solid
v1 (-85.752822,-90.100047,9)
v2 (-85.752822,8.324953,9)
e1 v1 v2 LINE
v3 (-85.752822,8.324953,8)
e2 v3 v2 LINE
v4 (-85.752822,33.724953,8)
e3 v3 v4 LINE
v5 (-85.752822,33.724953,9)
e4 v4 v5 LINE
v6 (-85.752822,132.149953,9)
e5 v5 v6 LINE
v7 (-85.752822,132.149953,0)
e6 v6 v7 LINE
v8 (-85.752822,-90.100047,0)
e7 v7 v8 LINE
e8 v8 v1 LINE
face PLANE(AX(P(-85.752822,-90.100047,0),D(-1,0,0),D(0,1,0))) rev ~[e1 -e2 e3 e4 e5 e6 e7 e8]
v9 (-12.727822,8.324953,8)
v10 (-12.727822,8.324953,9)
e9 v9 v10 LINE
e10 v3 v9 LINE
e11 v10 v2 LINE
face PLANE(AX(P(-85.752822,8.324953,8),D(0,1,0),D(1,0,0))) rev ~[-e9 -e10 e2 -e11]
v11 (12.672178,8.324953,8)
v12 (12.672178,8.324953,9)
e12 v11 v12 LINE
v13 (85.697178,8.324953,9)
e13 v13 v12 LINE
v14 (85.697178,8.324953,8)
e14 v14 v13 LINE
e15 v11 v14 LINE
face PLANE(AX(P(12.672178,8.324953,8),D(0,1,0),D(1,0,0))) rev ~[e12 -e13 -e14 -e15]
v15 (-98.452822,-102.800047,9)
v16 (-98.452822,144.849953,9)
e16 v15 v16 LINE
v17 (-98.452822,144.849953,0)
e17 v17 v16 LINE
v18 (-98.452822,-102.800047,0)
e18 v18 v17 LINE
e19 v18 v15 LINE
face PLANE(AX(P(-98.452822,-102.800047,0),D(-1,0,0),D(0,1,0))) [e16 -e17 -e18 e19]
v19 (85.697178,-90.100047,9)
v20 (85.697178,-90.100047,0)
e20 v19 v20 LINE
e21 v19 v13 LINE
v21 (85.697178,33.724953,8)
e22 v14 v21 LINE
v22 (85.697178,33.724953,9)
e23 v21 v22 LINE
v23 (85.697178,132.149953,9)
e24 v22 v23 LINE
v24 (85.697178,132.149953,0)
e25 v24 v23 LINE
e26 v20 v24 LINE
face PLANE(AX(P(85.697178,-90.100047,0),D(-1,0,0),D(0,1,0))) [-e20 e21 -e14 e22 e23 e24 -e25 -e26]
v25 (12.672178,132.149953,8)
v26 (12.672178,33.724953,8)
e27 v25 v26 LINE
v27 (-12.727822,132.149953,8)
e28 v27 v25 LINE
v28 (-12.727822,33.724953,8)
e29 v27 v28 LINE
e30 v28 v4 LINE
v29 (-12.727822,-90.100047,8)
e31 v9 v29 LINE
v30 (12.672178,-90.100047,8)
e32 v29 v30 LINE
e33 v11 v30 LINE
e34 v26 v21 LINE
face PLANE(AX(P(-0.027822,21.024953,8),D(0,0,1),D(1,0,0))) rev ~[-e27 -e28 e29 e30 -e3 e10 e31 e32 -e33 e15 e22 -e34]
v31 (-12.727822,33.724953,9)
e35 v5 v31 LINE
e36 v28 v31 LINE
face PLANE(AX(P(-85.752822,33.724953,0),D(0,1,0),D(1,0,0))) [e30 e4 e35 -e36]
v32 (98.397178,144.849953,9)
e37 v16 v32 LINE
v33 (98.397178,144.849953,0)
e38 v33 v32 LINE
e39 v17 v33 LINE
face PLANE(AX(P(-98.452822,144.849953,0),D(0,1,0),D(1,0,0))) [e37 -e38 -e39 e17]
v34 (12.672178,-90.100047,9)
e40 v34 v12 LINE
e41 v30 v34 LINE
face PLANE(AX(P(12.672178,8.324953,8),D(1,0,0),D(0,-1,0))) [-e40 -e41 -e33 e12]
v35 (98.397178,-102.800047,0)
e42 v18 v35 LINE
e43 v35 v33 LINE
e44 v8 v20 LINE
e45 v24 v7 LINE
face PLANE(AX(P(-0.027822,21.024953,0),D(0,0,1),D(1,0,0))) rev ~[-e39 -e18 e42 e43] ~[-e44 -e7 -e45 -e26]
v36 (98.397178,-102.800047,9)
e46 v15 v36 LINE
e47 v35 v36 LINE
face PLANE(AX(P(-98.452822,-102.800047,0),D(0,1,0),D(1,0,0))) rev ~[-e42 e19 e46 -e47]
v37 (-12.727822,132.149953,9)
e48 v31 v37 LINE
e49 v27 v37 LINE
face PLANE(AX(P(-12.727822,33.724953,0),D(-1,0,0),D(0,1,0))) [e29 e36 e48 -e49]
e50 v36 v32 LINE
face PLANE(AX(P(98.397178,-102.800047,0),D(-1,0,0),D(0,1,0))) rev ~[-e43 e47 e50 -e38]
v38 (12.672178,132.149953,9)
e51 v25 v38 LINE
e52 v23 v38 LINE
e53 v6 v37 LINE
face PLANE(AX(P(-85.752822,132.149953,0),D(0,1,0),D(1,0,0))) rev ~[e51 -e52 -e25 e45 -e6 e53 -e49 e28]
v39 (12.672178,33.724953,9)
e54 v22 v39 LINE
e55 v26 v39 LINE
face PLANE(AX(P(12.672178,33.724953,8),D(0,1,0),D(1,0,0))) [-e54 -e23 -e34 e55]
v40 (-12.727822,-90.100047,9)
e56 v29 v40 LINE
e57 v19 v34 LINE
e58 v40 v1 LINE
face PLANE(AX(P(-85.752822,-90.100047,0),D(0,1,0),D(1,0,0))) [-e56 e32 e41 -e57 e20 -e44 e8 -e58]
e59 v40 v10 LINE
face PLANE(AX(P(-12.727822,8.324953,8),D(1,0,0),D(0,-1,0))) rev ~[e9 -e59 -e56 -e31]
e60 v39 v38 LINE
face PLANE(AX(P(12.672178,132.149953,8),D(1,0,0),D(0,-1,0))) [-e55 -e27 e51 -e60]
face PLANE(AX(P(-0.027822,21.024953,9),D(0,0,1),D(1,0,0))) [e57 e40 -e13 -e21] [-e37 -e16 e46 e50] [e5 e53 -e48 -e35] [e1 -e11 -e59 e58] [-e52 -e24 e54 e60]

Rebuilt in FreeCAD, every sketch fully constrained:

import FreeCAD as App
import Part
import Sketcher
Q = App.Units.Quantity


def add_polygon(sketch, points):
    """Adds a closed chain of lines whose ends are joined by coincident constraints."""
    first, n = sketch.GeometryCount, len(points)
    for a, b in zip(points, points[1:] + points[:1]):
        sketch.addGeometry(Part.LineSegment(App.Vector(*a, 0), App.Vector(*b, 0)), False)
    for i in range(n):
        sketch.addConstraint(Sketcher.Constraint("Coincident", first + i, 2, first + (i + 1) % n, 1))

doc = App.newDocument("Part")
body = doc.addObject("PartDesign::Body", "Body")

sketch1 = doc.addObject("Sketcher::SketchObject", "Sketch")
body.addObject(sketch1)
sketch1.AttachmentSupport = (doc.XY_Plane, [""])
sketch1.MapMode = "FlatFace"
add_polygon(sketch1, [(-98, 145), (-98, -103), (98, -103), (98, 145)])
sketch1.addConstraint(Sketcher.Constraint("Vertical", 0))
sketch1.addConstraint(Sketcher.Constraint("Horizontal", 1))
sketch1.addConstraint(Sketcher.Constraint("Vertical", 2))
sketch1.addConstraint(Sketcher.Constraint("Horizontal", 3))
sketch1.addConstraint(Sketcher.Constraint("DistanceX", 1, 1, 1, 2, Q("7.75 in")))
sketch1.addConstraint(Sketcher.Constraint("DistanceY", 0, 2, 0, 1, Q("9.75 in")))
sketch1.addConstraint(Sketcher.Constraint("DistanceX", 0, 2, -1, 1, 98.452822))
sketch1.addConstraint(Sketcher.Constraint("DistanceY", 0, 2, -1, 1, 102.800047))
pad1 = doc.addObject("PartDesign::Pad", "Pad")
body.addObject(pad1)
pad1.Profile = sketch1
pad1.Length = 9

sketch2 = doc.addObject("Sketcher::SketchObject", "Sketch001")
body.addObject(sketch2)
sketch2.AttachmentSupport = (doc.XY_Plane, [""])
sketch2.MapMode = "FlatFace"
add_polygon(sketch2, [(-86, 132), (-86, -90), (86, -90), (86, 132)])
sketch2.addConstraint(Sketcher.Constraint("Vertical", 0))
sketch2.addConstraint(Sketcher.Constraint("Horizontal", 1))
sketch2.addConstraint(Sketcher.Constraint("Vertical", 2))
sketch2.addConstraint(Sketcher.Constraint("Horizontal", 3))
sketch2.addConstraint(Sketcher.Constraint("DistanceX", 1, 1, 1, 2, Q("6.75 in")))
sketch2.addConstraint(Sketcher.Constraint("DistanceY", 0, 2, 0, 1, Q("8.75 in")))
sketch2.addConstraint(Sketcher.Constraint("DistanceX", 0, 2, -1, 1, 85.752822))
sketch2.addConstraint(Sketcher.Constraint("DistanceY", 0, 2, -1, 1, 90.100047))
pocket1 = doc.addObject("PartDesign::Pocket", "Pocket")
body.addObject(pocket1)
pocket1.Profile = sketch2
pocket1.Length = 8
pocket1.Reversed = True

sketch3 = doc.addObject("Sketcher::SketchObject", "Sketch002")
body.addObject(sketch3)
sketch3.AttachmentSupport = (doc.XY_Plane, [""])
sketch3.MapMode = "FlatFace"
add_polygon(sketch3, [(-86, 132), (-86, 34), (-13, 34), (-13, 132)])
sketch3.addConstraint(Sketcher.Constraint("Vertical", 0))
sketch3.addConstraint(Sketcher.Constraint("Horizontal", 1))
sketch3.addConstraint(Sketcher.Constraint("Vertical", 2))
sketch3.addConstraint(Sketcher.Constraint("Horizontal", 3))
sketch3.addConstraint(Sketcher.Constraint("DistanceX", 1, 1, 1, 2, Q("2.875 in")))
sketch3.addConstraint(Sketcher.Constraint("DistanceY", 0, 2, 0, 1, Q("3.875 in")))
sketch3.addConstraint(Sketcher.Constraint("DistanceX", 0, 2, -1, 1, 85.752822))
sketch3.addConstraint(Sketcher.Constraint("DistanceY", -1, 1, 0, 2, 33.724953))
pocket2 = doc.addObject("PartDesign::Pocket", "Pocket001")
body.addObject(pocket2)
pocket2.Profile = sketch3
pocket2.Length = 9
pocket2.Reversed = True

sketch4 = doc.addObject("Sketcher::SketchObject", "Sketch003")
body.addObject(sketch4)
sketch4.AttachmentSupport = (doc.XY_Plane, [""])
sketch4.MapMode = "FlatFace"
sketch4.AttachmentOffset = App.Placement(App.Vector(0, 0, 8), App.Rotation())
add_polygon(sketch4, [(-86, -90), (-86, 8), (-13, 8), (-13, -90)])
sketch4.addConstraint(Sketcher.Constraint("Vertical", 0))
sketch4.addConstraint(Sketcher.Constraint("Horizontal", 1))
sketch4.addConstraint(Sketcher.Constraint("Vertical", 2))
sketch4.addConstraint(Sketcher.Constraint("Horizontal", 3))
sketch4.addConstraint(Sketcher.Constraint("DistanceX", 1, 1, 1, 2, Q("2.875 in")))
sketch4.addConstraint(Sketcher.Constraint("DistanceY", 0, 1, 0, 2, Q("3.875 in")))
sketch4.addConstraint(Sketcher.Constraint("DistanceX", 0, 2, -1, 1, 85.752822))
sketch4.addConstraint(Sketcher.Constraint("DistanceY", -1, 1, 0, 2, 8.324953))
pocket3 = doc.addObject("PartDesign::Pocket", "Pocket002")
body.addObject(pocket3)
pocket3.Profile = sketch4
pocket3.Length = 10
pocket3.Reversed = True

sketch5 = doc.addObject("Sketcher::SketchObject", "Sketch004")
body.addObject(sketch5)
sketch5.AttachmentSupport = (doc.XY_Plane, [""])
sketch5.MapMode = "FlatFace"
sketch5.AttachmentOffset = App.Placement(App.Vector(0, 0, 8), App.Rotation())
add_polygon(sketch5, [(13, 34), (13, 132), (86, 132), (86, 34)])
sketch5.addConstraint(Sketcher.Constraint("Vertical", 0))
sketch5.addConstraint(Sketcher.Constraint("Horizontal", 1))
sketch5.addConstraint(Sketcher.Constraint("Vertical", 2))
sketch5.addConstraint(Sketcher.Constraint("Horizontal", 3))
sketch5.addConstraint(Sketcher.Constraint("DistanceX", 1, 1, 1, 2, Q("2.875 in")))
sketch5.addConstraint(Sketcher.Constraint("DistanceY", 0, 1, 0, 2, Q("3.875 in")))
sketch5.addConstraint(Sketcher.Constraint("DistanceX", -1, 1, 0, 2, 12.672178))
sketch5.addConstraint(Sketcher.Constraint("DistanceY", -1, 1, 0, 2, 132.149953))
pocket4 = doc.addObject("PartDesign::Pocket", "Pocket003")
body.addObject(pocket4)
pocket4.Profile = sketch5
pocket4.Length = 10
pocket4.Reversed = True

sketch6 = doc.addObject("Sketcher::SketchObject", "Sketch005")
body.addObject(sketch6)
sketch6.AttachmentSupport = (doc.XY_Plane, [""])
sketch6.MapMode = "FlatFace"
sketch6.AttachmentOffset = App.Placement(App.Vector(0, 0, 8), App.Rotation())
add_polygon(sketch6, [(13, -90), (13, 8), (86, 8), (86, -90)])
sketch6.addConstraint(Sketcher.Constraint("Vertical", 0))
sketch6.addConstraint(Sketcher.Constraint("Horizontal", 1))
sketch6.addConstraint(Sketcher.Constraint("Vertical", 2))
sketch6.addConstraint(Sketcher.Constraint("Horizontal", 3))
sketch6.addConstraint(Sketcher.Constraint("DistanceX", 1, 1, 1, 2, Q("2.875 in")))
sketch6.addConstraint(Sketcher.Constraint("DistanceY", 0, 1, 0, 2, Q("3.875 in")))
sketch6.addConstraint(Sketcher.Constraint("DistanceX", -1, 1, 0, 2, 12.672178))
sketch6.addConstraint(Sketcher.Constraint("DistanceY", -1, 1, 0, 2, 8.324953))
pocket5 = doc.addObject("PartDesign::Pocket", "Pocket004")
body.addObject(pocket5)
pocket5.Profile = sketch6
pocket5.Length = 10
pocket5.Reversed = True

doc.recompute()
